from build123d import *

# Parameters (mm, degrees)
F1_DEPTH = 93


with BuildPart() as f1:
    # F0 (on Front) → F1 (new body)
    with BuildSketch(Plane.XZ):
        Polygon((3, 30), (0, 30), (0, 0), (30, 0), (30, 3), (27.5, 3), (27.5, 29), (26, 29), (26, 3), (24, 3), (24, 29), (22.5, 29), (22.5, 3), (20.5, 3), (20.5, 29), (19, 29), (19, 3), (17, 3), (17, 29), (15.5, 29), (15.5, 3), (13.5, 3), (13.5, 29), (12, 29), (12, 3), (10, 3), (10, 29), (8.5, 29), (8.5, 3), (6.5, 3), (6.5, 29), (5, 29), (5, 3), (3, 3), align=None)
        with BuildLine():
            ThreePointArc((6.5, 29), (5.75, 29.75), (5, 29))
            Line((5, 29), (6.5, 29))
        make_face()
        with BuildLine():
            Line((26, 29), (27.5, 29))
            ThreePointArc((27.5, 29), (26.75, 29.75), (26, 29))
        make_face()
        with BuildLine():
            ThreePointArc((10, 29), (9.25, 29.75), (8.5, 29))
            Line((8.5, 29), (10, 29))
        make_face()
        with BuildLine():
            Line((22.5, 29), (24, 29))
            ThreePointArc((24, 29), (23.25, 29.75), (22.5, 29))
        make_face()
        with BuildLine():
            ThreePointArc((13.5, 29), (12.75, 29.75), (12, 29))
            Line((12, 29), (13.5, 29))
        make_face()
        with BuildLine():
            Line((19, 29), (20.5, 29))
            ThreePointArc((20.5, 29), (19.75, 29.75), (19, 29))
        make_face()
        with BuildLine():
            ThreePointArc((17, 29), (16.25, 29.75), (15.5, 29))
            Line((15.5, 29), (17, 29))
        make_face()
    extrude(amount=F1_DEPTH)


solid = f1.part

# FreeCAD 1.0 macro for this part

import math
import FreeCAD as App
import Part
import Sketcher
Q = App.Units.Quantity

doc = App.newDocument("Part")
body = doc.addObject("PartDesign::Body", "Body")

# Sketch on XZ plane
sketch1 = body.newObject("Sketcher::SketchObject", "Sketch")
sketch1.AttachmentSupport = (doc.getObject("XZ_Plane"), [""])
sketch1.MapMode = "FlatFace"
sketch1.addGeometry(Part.LineSegment(App.Vector(3, 30, 0), App.Vector(0, 30, 0)), False)
sketch1.addGeometry(Part.LineSegment(App.Vector(0, 30, 0), App.Vector(0, 0, 0)), False)
sketch1.addGeometry(Part.LineSegment(App.Vector(0, 0, 0), App.Vector(30, 0, 0)), False)
sketch1.addGeometry(Part.LineSegment(App.Vector(30, 0, 0), App.Vector(30, 3, 0)), False)
sketch1.addGeometry(Part.LineSegment(App.Vector(30, 3, 0), App.Vector(27.5, 3, 0)), False)
sketch1.addGeometry(Part.LineSegment(App.Vector(27.5, 3, 0), App.Vector(27.5, 29, 0)), False)
sketch1.addGeometry(Part.ArcOfCircle(Part.Circle(App.Vector(26.8, 29, 0), App.Vector(0, 0, 1), 0.8), math.radians(0), math.radians(180)), False)
sketch1.addGeometry(Part.LineSegment(App.Vector(26, 29, 0), App.Vector(26, 3, 0)), False)
sketch1.addGeometry(Part.LineSegment(App.Vector(26, 3, 0), App.Vector(24, 3, 0)), False)
sketch1.addGeometry(Part.LineSegment(App.Vector(24, 3, 0), App.Vector(24, 29, 0)), False)
sketch1.addGeometry(Part.ArcOfCircle(Part.Circle(App.Vector(23.2, 29, 0), App.Vector(0, 0, 1), 0.8), math.radians(0), math.radians(180)), False)
sketch1.addGeometry(Part.LineSegment(App.Vector(22.5, 29, 0), App.Vector(22.5, 3, 0)), False)
sketch1.addGeometry(Part.LineSegment(App.Vector(22.5, 3, 0), App.Vector(20.5, 3, 0)), False)
sketch1.addGeometry(Part.LineSegment(App.Vector(20.5, 3, 0), App.Vector(20.5, 29, 0)), False)
sketch1.addGeometry(Part.ArcOfCircle(Part.Circle(App.Vector(19.8, 29, 0), App.Vector(0, 0, 1), 0.8), math.radians(0), math.radians(180)), False)
sketch1.addGeometry(Part.LineSegment(App.Vector(19, 29, 0), App.Vector(19, 3, 0)), False)
sketch1.addGeometry(Part.LineSegment(App.Vector(19, 3, 0), App.Vector(17, 3, 0)), False)
sketch1.addGeometry(Part.LineSegment(App.Vector(17, 3, 0), App.Vector(17, 29, 0)), False)
sketch1.addGeometry(Part.ArcOfCircle(Part.Circle(App.Vector(16.2, 29, 0), App.Vector(0, 0, 1), 0.8), math.radians(0), math.radians(180)), False)
sketch1.addGeometry(Part.LineSegment(App.Vector(15.5, 29, 0), App.Vector(15.5, 3, 0)), False)
sketch1.addGeometry(Part.LineSegment(App.Vector(15.5, 3, 0), App.Vector(13.5, 3, 0)), False)
sketch1.addGeometry(Part.LineSegment(App.Vector(13.5, 3, 0), App.Vector(13.5, 29, 0)), False)
sketch1.addGeometry(Part.ArcOfCircle(Part.Circle(App.Vector(12.8, 29, 0), App.Vector(0, 0, 1), 0.8), math.radians(0), math.radians(180)), False)
sketch1.addGeometry(Part.LineSegment(App.Vector(12, 29, 0), App.Vector(12, 3, 0)), False)
sketch1.addGeometry(Part.LineSegment(App.Vector(12, 3, 0), App.Vector(10, 3, 0)), False)
sketch1.addGeometry(Part.LineSegment(App.Vector(10, 3, 0), App.Vector(10, 29, 0)), False)
sketch1.addGeometry(Part.ArcOfCircle(Part.Circle(App.Vector(9.2, 29, 0), App.Vector(0, 0, 1), 0.8), math.radians(0), math.radians(180)), False)
sketch1.addGeometry(Part.LineSegment(App.Vector(8.5, 29, 0), App.Vector(8.5, 3, 0)), False)
sketch1.addGeometry(Part.LineSegment(App.Vector(8.5, 3, 0), App.Vector(6.5, 3, 0)), False)
sketch1.addGeometry(Part.LineSegment(App.Vector(6.5, 3, 0), App.Vector(6.5, 29, 0)), False)
sketch1.addGeometry(Part.ArcOfCircle(Part.Circle(App.Vector(5.8, 29, 0), App.Vector(0, 0, 1), 0.8), math.radians(0), math.radians(180)), False)
sketch1.addGeometry(Part.LineSegment(App.Vector(5, 29, 0), App.Vector(5, 3, 0)), False)
sketch1.addGeometry(Part.LineSegment(App.Vector(5, 3, 0), App.Vector(3, 3, 0)), False)
sketch1.addGeometry(Part.LineSegment(App.Vector(3, 3, 0), App.Vector(3, 30, 0)), False)
sketch1.addConstraint(Sketcher.Constraint("Coincident", 0, 2, 1, 1))
sketch1.addConstraint(Sketcher.Constraint("Coincident", 1, 2, 2, 1))
sketch1.addConstraint(Sketcher.Constraint("Coincident", 2, 2, 3, 1))
sketch1.addConstraint(Sketcher.Constraint("Coincident", 3, 2, 4, 1))
sketch1.addConstraint(Sketcher.Constraint("Coincident", 4, 2, 5, 1))
sketch1.addConstraint(Sketcher.Constraint("Tangent", 5, 2, 6, 1))
sketch1.addConstraint(Sketcher.Constraint("Tangent", 6, 2, 7, 1))
sketch1.addConstraint(Sketcher.Constraint("Coincident", 7, 2, 8, 1))
sketch1.addConstraint(Sketcher.Constraint("Coincident", 8, 2, 9, 1))
sketch1.addConstraint(Sketcher.Constraint("Tangent", 9, 2, 10, 1))
sketch1.addConstraint(Sketcher.Constraint("Tangent", 10, 2, 11, 1))
sketch1.addConstraint(Sketcher.Constraint("Coincident", 11, 2, 12, 1))
sketch1.addConstraint(Sketcher.Constraint("Coincident", 12, 2, 13, 1))
sketch1.addConstraint(Sketcher.Constraint("Tangent", 13, 2, 14, 1))
sketch1.addConstraint(Sketcher.Constraint("Tangent", 14, 2, 15, 1))
sketch1.addConstraint(Sketcher.Constraint("Coincident", 15, 2, 16, 1))
sketch1.addConstraint(Sketcher.Constraint("Coincident", 16, 2, 17, 1))
sketch1.addConstraint(Sketcher.Constraint("Tangent", 17, 2, 18, 1))
sketch1.addConstraint(Sketcher.Constraint("Tangent", 18, 2, 19, 1))
sketch1.addConstraint(Sketcher.Constraint("Coincident", 19, 2, 20, 1))
sketch1.addConstraint(Sketcher.Constraint("Coincident", 20, 2, 21, 1))
sketch1.addConstraint(Sketcher.Constraint("Tangent", 21, 2, 22, 1))
sketch1.addConstraint(Sketcher.Constraint("Tangent", 22, 2, 23, 1))
sketch1.addConstraint(Sketcher.Constraint("Coincident", 23, 2, 24, 1))
sketch1.addConstraint(Sketcher.Constraint("Coincident", 24, 2, 25, 1))
sketch1.addConstraint(Sketcher.Constraint("Tangent", 25, 2, 26, 1))
sketch1.addConstraint(Sketcher.Constraint("Tangent", 26, 2, 27, 1))
sketch1.addConstraint(Sketcher.Constraint("Coincident", 27, 2, 28, 1))
sketch1.addConstraint(Sketcher.Constraint("Coincident", 28, 2, 29, 1))
sketch1.addConstraint(Sketcher.Constraint("Tangent", 29, 2, 30, 1))
sketch1.addConstraint(Sketcher.Constraint("Tangent", 30, 2, 31, 1))
sketch1.addConstraint(Sketcher.Constraint("Coincident", 31, 2, 32, 1))
sketch1.addConstraint(Sketcher.Constraint("Coincident", 32, 2, 33, 1))
sketch1.addConstraint(Sketcher.Constraint("Coincident", 33, 2, 0, 1))
sketch1.addConstraint(Sketcher.Constraint("Horizontal", 0))
sketch1.addConstraint(Sketcher.Constraint("Vertical", 1))
sketch1.addConstraint(Sketcher.Constraint("Horizontal", 2))
sketch1.addConstraint(Sketcher.Constraint("Vertical", 3))
sketch1.addConstraint(Sketcher.Constraint("Horizontal", 4))
sketch1.addConstraint(Sketcher.Constraint("Vertical", 5))
sketch1.addConstraint(Sketcher.Constraint("Vertical", 7))
sketch1.addConstraint(Sketcher.Constraint("Horizontal", 8))
sketch1.addConstraint(Sketcher.Constraint("Vertical", 9))
sketch1.addConstraint(Sketcher.Constraint("Vertical", 11))
sketch1.addConstraint(Sketcher.Constraint("Horizontal", 12))
sketch1.addConstraint(Sketcher.Constraint("Vertical", 13))
sketch1.addConstraint(Sketcher.Constraint("Vertical", 15))
sketch1.addConstraint(Sketcher.Constraint("Horizontal", 16))
sketch1.addConstraint(Sketcher.Constraint("Vertical", 17))
sketch1.addConstraint(Sketcher.Constraint("Vertical", 19))
sketch1.addConstraint(Sketcher.Constraint("Horizontal", 20))
sketch1.addConstraint(Sketcher.Constraint("Vertical", 21))
sketch1.addConstraint(Sketcher.Constraint("Vertical", 23))
sketch1.addConstraint(Sketcher.Constraint("Horizontal", 24))
sketch1.addConstraint(Sketcher.Constraint("Vertical", 25))
sketch1.addConstraint(Sketcher.Constraint("Vertical", 27))
sketch1.addConstraint(Sketcher.Constraint("Horizontal", 28))
sketch1.addConstraint(Sketcher.Constraint("Vertical", 29))
sketch1.addConstraint(Sketcher.Constraint("Vertical", 31))
sketch1.addConstraint(Sketcher.Constraint("Horizontal", 32))
sketch1.addConstraint(Sketcher.Constraint("Vertical", 33))
sketch1.addConstraint(Sketcher.Constraint("Coincident", 1, 2, -1, 1))
sketch1.addConstraint(Sketcher.Constraint("Equal", 6, 10))
sketch1.addConstraint(Sketcher.Constraint("Equal", 10, 14))
sketch1.addConstraint(Sketcher.Constraint("Equal", 14, 18))
sketch1.addConstraint(Sketcher.Constraint("Equal", 18, 22))
sketch1.addConstraint(Sketcher.Constraint("Equal", 22, 26))
sketch1.addConstraint(Sketcher.Constraint("Equal", 26, 30))
sketch1.addConstraint(Sketcher.Constraint("Horizontal", 6, 3, 10, 3))
sketch1.addConstraint(Sketcher.Constraint("Horizontal", 10, 3, 14, 3))
sketch1.addConstraint(Sketcher.Constraint("Horizontal", 14, 3, 18, 3))
sketch1.addConstraint(Sketcher.Constraint("Horizontal", 18, 3, 22, 3))
sketch1.addConstraint(Sketcher.Constraint("Horizontal", 22, 3, 26, 3))
sketch1.addConstraint(Sketcher.Constraint("Horizontal", 26, 3, 30, 3))
sketch1.addConstraint(Sketcher.Constraint("Horizontal", 4, 2, 7, 2))
sketch1.addConstraint(Sketcher.Constraint("Horizontal", 8, 2, 11, 2))
sketch1.addConstraint(Sketcher.Constraint("Horizontal", 12, 2, 15, 2))
sketch1.addConstraint(Sketcher.Constraint("Horizontal", 16, 2, 19, 2))
sketch1.addConstraint(Sketcher.Constraint("Horizontal", 20, 2, 23, 2))
sketch1.addConstraint(Sketcher.Constraint("Horizontal", 24, 2, 27, 2))
sketch1.addConstraint(Sketcher.Constraint("Horizontal", 28, 2, 31, 2))
sketch1.addConstraint(Sketcher.Constraint("Equal", 8, 12))
sketch1.addConstraint(Sketcher.Constraint("Equal", 12, 16))
sketch1.addConstraint(Sketcher.Constraint("Equal", 16, 20))
sketch1.addConstraint(Sketcher.Constraint("Equal", 20, 24))
sketch1.addConstraint(Sketcher.Constraint("Equal", 24, 28))
sketch1.addConstraint(Sketcher.Constraint("Equal", 28, 32))
sketch1.addConstraint(Sketcher.Constraint("Equal", 2, 1))
sketch1.addConstraint(Sketcher.Constraint("Equal", 0, 3))
sketch1.addConstraint(Sketcher.Constraint("DistanceX", 0, 2, 0, 1, Q("3 mm")))
sketch1.addConstraint(Sketcher.Constraint("DistanceX", 2, 1, 2, 2, Q("30 mm")))
sketch1.addConstraint(Sketcher.Constraint("DistanceX", 8, 2, 8, 1, Q("2 mm")))
sketch1.addConstraint(Sketcher.Constraint("DistanceY", 5, 1, 5, 2, Q("26 mm")))
sketch1.addConstraint(Sketcher.Constraint("Radius", 6, Q("0.75 mm")))
pad1 = body.newObject("PartDesign::Pad", "Pad")
pad1.Profile = sketch1
pad1.Length = 93

doc.recompute()
